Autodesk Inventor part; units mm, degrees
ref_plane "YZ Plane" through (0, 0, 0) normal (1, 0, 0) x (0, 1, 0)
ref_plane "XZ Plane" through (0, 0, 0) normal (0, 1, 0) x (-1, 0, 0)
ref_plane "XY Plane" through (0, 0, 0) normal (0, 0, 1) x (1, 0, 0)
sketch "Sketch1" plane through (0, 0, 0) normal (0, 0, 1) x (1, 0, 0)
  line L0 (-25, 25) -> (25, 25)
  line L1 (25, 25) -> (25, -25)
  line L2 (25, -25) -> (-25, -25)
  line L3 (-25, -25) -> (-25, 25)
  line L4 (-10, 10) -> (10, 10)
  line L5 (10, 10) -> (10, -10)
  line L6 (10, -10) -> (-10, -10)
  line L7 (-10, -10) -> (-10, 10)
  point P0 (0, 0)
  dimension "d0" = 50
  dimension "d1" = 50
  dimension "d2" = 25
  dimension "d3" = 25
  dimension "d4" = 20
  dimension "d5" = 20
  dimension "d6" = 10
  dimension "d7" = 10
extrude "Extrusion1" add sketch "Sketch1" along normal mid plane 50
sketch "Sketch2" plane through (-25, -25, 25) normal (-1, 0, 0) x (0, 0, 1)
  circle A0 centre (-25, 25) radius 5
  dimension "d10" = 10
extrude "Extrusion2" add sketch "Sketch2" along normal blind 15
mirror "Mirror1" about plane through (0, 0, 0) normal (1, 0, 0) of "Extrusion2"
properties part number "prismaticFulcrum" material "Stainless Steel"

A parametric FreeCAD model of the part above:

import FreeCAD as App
import Part
import Sketcher
from FreeCAD import Vector


def add_polygon(sketch, points):
    """Adds a closed chain of lines whose ends are joined by coincident constraints."""
    first, n = sketch.GeometryCount, len(points)
    for a, b in zip(points, points[1:] + points[:1]):
        sketch.addGeometry(Part.LineSegment(App.Vector(*a, 0), App.Vector(*b, 0)), False)
    for i in range(n):
        sketch.addConstraint(Sketcher.Constraint("Coincident", first + i, 2, first + (i + 1) % n, 1))

doc = App.newDocument("Part")
body = doc.addObject("PartDesign::Body", "Body")

sketch1 = body.newObject("Sketcher::SketchObject", "Sketch")
sketch1.AttachmentSupport = (doc.getObject("XY_Plane"), [""])
sketch1.MapMode = "FlatFace"
add_polygon(sketch1, [(25, 25), (-25, 25), (-25, -25), (25, -25)])
add_polygon(sketch1, [(-10, -10), (-10, 10), (10, 10), (10, -10)])
sketch1.addConstraint([
    Sketcher.Constraint("Horizontal", 0),
    Sketcher.Constraint("Vertical", 1),
    Sketcher.Constraint("Horizontal", 2),
    Sketcher.Constraint("Vertical", 3),
    Sketcher.Constraint("Vertical", 4),
    Sketcher.Constraint("Horizontal", 5),
    Sketcher.Constraint("Vertical", 6),
    Sketcher.Constraint("Horizontal", 7),
    Sketcher.Constraint("Symmetric", 0, 2, 2, 2, -1, 1),
    Sketcher.Constraint("Symmetric", 4, 2, 6, 2, -1, 1),
    Sketcher.Constraint("Equal", 2, 1),
    Sketcher.Constraint("Equal", 7, 4),
    Sketcher.Constraint("DistanceX", 0, 2, 0, 1, 50.0),
    Sketcher.Constraint("DistanceX", 5, 1, 5, 2, 20.0),
])
pad1 = body.newObject("PartDesign::Pad", "Pad")
pad1.Profile = sketch1
pad1.Length = 50
pad1.Midplane = True

sketch2 = body.newObject("Sketcher::SketchObject", "Sketch001")
sketch2.AttachmentSupport = (doc.getObject("YZ_Plane"), [""])
sketch2.MapMode = "FlatFace"
sketch2.AttachmentOffset = App.Placement(Vector(0, 0, -25), App.Rotation())
sketch2.addGeometry(Part.Circle(Vector(0, 0, 0), Vector(0, 0, 1), 5), False)
sketch2.addConstraint([
    Sketcher.Constraint("Coincident", 0, 3, -1, 1),
    Sketcher.Constraint("Diameter", 0, 10.0),
])
pad2 = body.newObject("PartDesign::Pad", "Pad001")
pad2.Profile = sketch2
pad2.Length = 15
pad2.Reversed = True
doc.recompute()

mirrored = body.newObject("PartDesign::Mirrored", "Mirrored")
mirrored.Originals = [pad2]
mirrored.MirrorPlane = (doc.getObject("YZ_Plane"), [""])
body.Tip = mirrored

doc.recompute()
